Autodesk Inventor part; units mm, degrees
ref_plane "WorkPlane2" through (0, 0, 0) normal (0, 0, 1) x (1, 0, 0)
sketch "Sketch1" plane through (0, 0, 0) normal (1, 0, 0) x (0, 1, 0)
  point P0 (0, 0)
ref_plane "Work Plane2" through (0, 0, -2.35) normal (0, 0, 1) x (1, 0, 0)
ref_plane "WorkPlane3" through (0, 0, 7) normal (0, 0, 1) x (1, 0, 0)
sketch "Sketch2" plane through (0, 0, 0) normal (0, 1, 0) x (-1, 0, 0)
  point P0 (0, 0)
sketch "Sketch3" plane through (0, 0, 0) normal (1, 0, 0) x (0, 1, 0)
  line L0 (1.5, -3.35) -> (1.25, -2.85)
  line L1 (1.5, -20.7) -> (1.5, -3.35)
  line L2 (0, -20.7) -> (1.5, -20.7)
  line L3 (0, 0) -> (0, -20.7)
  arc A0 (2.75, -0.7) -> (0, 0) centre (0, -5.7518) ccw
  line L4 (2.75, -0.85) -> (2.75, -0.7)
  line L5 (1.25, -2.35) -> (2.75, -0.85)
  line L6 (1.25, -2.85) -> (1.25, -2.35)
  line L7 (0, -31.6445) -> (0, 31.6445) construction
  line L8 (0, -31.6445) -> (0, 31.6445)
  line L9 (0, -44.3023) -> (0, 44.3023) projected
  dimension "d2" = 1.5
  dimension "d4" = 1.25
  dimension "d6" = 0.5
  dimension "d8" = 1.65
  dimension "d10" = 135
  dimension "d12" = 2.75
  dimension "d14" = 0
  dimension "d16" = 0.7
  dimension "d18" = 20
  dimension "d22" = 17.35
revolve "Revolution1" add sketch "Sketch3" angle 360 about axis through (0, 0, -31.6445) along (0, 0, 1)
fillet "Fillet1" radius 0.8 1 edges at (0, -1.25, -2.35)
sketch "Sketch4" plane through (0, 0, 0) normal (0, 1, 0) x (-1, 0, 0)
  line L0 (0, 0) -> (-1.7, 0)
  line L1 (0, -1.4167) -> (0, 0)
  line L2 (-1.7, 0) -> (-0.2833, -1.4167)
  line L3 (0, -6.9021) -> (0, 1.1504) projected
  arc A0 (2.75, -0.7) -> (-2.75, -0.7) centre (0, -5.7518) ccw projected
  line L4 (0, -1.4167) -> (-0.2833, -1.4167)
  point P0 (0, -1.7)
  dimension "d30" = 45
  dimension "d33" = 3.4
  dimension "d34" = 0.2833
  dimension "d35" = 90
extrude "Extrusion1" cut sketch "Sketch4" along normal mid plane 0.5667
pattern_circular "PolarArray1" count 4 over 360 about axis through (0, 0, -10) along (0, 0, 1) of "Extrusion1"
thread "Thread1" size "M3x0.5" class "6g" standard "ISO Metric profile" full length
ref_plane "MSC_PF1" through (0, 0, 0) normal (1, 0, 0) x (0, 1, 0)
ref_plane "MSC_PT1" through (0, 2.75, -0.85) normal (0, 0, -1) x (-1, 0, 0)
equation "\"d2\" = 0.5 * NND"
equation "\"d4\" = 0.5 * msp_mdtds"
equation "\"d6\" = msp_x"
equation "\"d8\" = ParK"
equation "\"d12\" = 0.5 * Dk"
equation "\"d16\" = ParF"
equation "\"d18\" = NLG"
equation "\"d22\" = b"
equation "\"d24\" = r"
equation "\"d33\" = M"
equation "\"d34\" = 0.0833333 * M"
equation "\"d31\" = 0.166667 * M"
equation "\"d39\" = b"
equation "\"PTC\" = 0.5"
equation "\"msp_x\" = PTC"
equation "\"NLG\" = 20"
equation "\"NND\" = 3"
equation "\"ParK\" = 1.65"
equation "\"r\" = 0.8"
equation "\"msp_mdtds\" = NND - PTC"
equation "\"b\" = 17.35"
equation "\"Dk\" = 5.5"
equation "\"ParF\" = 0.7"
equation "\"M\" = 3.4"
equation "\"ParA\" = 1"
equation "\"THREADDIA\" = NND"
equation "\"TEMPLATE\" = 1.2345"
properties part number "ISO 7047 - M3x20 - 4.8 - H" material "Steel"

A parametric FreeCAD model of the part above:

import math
import FreeCAD as App
import Part
import Sketcher

V = App.Vector
Q = App.Units.Quantity


def edges_at(feature, points):
    """Names of the edges that pass closest to the given points."""
    edges = feature.Shape.Edges
    near = lambda p: min(range(len(edges)), key=lambda i: edges[i].distToShape(Part.Vertex(*p))[0])
    return sorted({f"Edge{near(p) + 1}" for p in points})


def add_polygon(sketch, points):
    """Adds a closed chain of lines whose ends are joined by coincident constraints."""
    first, n = sketch.GeometryCount, len(points)
    for a, b in zip(points, points[1:] + points[:1]):
        sketch.addGeometry(Part.LineSegment(App.Vector(*a, 0), App.Vector(*b, 0)), False)
    for i in range(n):
        sketch.addConstraint(Sketcher.Constraint("Coincident", first + i, 2, first + (i + 1) % n, 1))

doc = App.newDocument("Part")
body = doc.addObject("PartDesign::Body", "Body")

sketch1 = doc.addObject("Sketcher::SketchObject", "Sketch")
body.addObject(sketch1)
sketch1.AttachmentSupport = (doc.YZ_Plane, [""])
sketch1.MapMode = "FlatFace"
sketch1.addGeometry(Part.LineSegment(V(1.5, -20.7, 0), V(1.5, -3.35, 0)), False)
sketch1.addGeometry(Part.LineSegment(V(1.5, -3.35, 0), V(1.25, -2.85, 0)), False)
sketch1.addGeometry(Part.LineSegment(V(1.25, -2.85, 0), V(1.25, -2.35, 0)), False)
sketch1.addGeometry(Part.LineSegment(V(1.25, -2.35, 0), V(2.75, -0.85, 0)), False)
sketch1.addGeometry(Part.LineSegment(V(2.75, -0.85, 0), V(2.75, -0.7, 0)), False)
sketch1.addGeometry(Part.ArcOfCircle(Part.Circle(V(0, -5.75, 0), V(0, 0, 1), 5.75), math.radians(61), math.radians(90)), False)
sketch1.addGeometry(Part.LineSegment(V(0, 0, 0), V(0, -20.7, 0)), False)
sketch1.addGeometry(Part.LineSegment(V(0, -20.7, 0), V(1.5, -20.7, 0)), False)
sketch1.addConstraint(Sketcher.Constraint("Coincident", 0, 2, 1, 1))
sketch1.addConstraint(Sketcher.Constraint("Coincident", 1, 2, 2, 1))
sketch1.addConstraint(Sketcher.Constraint("Coincident", 2, 2, 3, 1))
sketch1.addConstraint(Sketcher.Constraint("Coincident", 3, 2, 4, 1))
sketch1.addConstraint(Sketcher.Constraint("Coincident", 4, 2, 5, 1))
sketch1.addConstraint(Sketcher.Constraint("Coincident", 5, 2, 6, 1))
sketch1.addConstraint(Sketcher.Constraint("Coincident", 6, 2, 7, 1))
sketch1.addConstraint(Sketcher.Constraint("Coincident", 7, 2, 0, 1))
sketch1.addConstraint(Sketcher.Constraint("Vertical", 0))
sketch1.addConstraint(Sketcher.Constraint("Vertical", 2))
sketch1.addConstraint(Sketcher.Constraint("Vertical", 4))
sketch1.addConstraint(Sketcher.Constraint("Vertical", 6))
sketch1.addConstraint(Sketcher.Constraint("Horizontal", 7))
sketch1.addConstraint(Sketcher.Constraint("Coincident", 5, 2, -1, 1))
sketch1.addConstraint(Sketcher.Constraint("PointOnObject", 5, 3, -2))
sketch1.addConstraint(Sketcher.Constraint("DistanceX", 7, 1, 7, 2, Q("1.5 mm")))
sketch1.addConstraint(Sketcher.Constraint("DistanceY", 2, 1, 2, 2, Q("0.5 mm")))
sketch1.addConstraint(Sketcher.Constraint("DistanceY", 0, 1, 0, 2, Q("17.35 mm")))
sketch1.addConstraint(Sketcher.Constraint("DistanceY", 4, 2, -1, 1, Q("0.7 mm")))
sketch1.addConstraint(Sketcher.Constraint("DistanceY", 0, 2, 1, 2, Q("0.5 mm")))
sketch1.addConstraint(Sketcher.Constraint("DistanceX", 2, 2, 3, 2, Q("1.5 mm")))
sketch1.addConstraint(Sketcher.Constraint("DistanceY", 2, 2, 3, 2, Q("1.5 mm")))
sketch1.addConstraint(Sketcher.Constraint("DistanceX", -1, 1, 1, 2, Q("1.25 mm")))
sketch1.addConstraint(Sketcher.Constraint("DistanceY", 2, 2, 4, 2, Q("1.65 mm")))
revolution = doc.addObject("PartDesign::Revolution", "Revolution")
body.addObject(revolution)
revolution.Profile = sketch1
revolution.ReferenceAxis = (sketch1, ["V_Axis"])
revolution.Angle = 360
doc.recompute()

fillet = doc.addObject("PartDesign::Fillet", "Fillet")
body.addObject(fillet)
fillet.Base = (revolution, edges_at(revolution, [(0, -1.25, -2.35)]))
fillet.Radius = 0.8

sketch2 = doc.addObject("Sketcher::SketchObject", "Sketch001")
body.addObject(sketch2)
sketch2.AttachmentSupport = (doc.XZ_Plane, [""])
sketch2.MapMode = "FlatFace"
add_polygon(sketch2, [(1.7, 0), (0.28, -1.42), (0, -1.42), (0, 0)])
sketch2.addConstraint(Sketcher.Constraint("Horizontal", 1))
sketch2.addConstraint(Sketcher.Constraint("Vertical", 2))
sketch2.addConstraint(Sketcher.Constraint("Horizontal", 3))
sketch2.addConstraint(Sketcher.Constraint("Coincident", 2, 2, -1, 1))
sketch2.addConstraint(Sketcher.Constraint("Angle", 0, Q("-135 deg")))
sketch2.addConstraint(Sketcher.Constraint("DistanceX", 1, 2, 1, 1, Q("0.2833 mm")))
sketch2.addConstraint(Sketcher.Constraint("DistanceX", 3, 1, 3, 2, Q("1.7 mm")))
pocket1 = doc.addObject("PartDesign::Pocket", "Pocket")
body.addObject(pocket1)
pocket1.Profile = sketch2
pocket1.Length = 0.5667
pocket1.Midplane = True
doc.recompute()

polarpattern = doc.addObject("PartDesign::PolarPattern", "PolarPattern")
body.addObject(polarpattern)
polarpattern.Originals = [pocket1]
polarpattern.Axis = (doc.Z_Axis, [""])
polarpattern.Angle = 360
polarpattern.Occurrences = 4
body.Tip = polarpattern

doc.recompute()
